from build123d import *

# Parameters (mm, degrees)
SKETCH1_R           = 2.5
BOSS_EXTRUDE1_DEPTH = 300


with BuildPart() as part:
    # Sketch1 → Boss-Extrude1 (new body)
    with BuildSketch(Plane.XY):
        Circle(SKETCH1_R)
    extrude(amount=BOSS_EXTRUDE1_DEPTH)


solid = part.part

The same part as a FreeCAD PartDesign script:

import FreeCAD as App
import Part
import Sketcher
from FreeCAD import Vector
Q = App.Units.Quantity

doc = App.newDocument("Part")
body = doc.addObject("PartDesign::Body", "Body")

# Sketch on XY plane
sketch1 = body.newObject("Sketcher::SketchObject", "Sketch")
sketch1.AttachmentSupport = (doc.getObject("XY_Plane"), [""])
sketch1.MapMode = "FlatFace"
sketch1.addGeometry(Part.Circle(Vector(0, 0, 0), Vector(0, 0, 1), 2.5), False)
sketch1.addConstraint([
    Sketcher.Constraint("Coincident", 0, 3, -1, 1),
    Sketcher.Constraint("Diameter", 0, Q("5 mm")),
])
pad1 = body.newObject("PartDesign::Pad", "Pad")
pad1.Profile = sketch1
pad1.Length = 300

doc.recompute()
